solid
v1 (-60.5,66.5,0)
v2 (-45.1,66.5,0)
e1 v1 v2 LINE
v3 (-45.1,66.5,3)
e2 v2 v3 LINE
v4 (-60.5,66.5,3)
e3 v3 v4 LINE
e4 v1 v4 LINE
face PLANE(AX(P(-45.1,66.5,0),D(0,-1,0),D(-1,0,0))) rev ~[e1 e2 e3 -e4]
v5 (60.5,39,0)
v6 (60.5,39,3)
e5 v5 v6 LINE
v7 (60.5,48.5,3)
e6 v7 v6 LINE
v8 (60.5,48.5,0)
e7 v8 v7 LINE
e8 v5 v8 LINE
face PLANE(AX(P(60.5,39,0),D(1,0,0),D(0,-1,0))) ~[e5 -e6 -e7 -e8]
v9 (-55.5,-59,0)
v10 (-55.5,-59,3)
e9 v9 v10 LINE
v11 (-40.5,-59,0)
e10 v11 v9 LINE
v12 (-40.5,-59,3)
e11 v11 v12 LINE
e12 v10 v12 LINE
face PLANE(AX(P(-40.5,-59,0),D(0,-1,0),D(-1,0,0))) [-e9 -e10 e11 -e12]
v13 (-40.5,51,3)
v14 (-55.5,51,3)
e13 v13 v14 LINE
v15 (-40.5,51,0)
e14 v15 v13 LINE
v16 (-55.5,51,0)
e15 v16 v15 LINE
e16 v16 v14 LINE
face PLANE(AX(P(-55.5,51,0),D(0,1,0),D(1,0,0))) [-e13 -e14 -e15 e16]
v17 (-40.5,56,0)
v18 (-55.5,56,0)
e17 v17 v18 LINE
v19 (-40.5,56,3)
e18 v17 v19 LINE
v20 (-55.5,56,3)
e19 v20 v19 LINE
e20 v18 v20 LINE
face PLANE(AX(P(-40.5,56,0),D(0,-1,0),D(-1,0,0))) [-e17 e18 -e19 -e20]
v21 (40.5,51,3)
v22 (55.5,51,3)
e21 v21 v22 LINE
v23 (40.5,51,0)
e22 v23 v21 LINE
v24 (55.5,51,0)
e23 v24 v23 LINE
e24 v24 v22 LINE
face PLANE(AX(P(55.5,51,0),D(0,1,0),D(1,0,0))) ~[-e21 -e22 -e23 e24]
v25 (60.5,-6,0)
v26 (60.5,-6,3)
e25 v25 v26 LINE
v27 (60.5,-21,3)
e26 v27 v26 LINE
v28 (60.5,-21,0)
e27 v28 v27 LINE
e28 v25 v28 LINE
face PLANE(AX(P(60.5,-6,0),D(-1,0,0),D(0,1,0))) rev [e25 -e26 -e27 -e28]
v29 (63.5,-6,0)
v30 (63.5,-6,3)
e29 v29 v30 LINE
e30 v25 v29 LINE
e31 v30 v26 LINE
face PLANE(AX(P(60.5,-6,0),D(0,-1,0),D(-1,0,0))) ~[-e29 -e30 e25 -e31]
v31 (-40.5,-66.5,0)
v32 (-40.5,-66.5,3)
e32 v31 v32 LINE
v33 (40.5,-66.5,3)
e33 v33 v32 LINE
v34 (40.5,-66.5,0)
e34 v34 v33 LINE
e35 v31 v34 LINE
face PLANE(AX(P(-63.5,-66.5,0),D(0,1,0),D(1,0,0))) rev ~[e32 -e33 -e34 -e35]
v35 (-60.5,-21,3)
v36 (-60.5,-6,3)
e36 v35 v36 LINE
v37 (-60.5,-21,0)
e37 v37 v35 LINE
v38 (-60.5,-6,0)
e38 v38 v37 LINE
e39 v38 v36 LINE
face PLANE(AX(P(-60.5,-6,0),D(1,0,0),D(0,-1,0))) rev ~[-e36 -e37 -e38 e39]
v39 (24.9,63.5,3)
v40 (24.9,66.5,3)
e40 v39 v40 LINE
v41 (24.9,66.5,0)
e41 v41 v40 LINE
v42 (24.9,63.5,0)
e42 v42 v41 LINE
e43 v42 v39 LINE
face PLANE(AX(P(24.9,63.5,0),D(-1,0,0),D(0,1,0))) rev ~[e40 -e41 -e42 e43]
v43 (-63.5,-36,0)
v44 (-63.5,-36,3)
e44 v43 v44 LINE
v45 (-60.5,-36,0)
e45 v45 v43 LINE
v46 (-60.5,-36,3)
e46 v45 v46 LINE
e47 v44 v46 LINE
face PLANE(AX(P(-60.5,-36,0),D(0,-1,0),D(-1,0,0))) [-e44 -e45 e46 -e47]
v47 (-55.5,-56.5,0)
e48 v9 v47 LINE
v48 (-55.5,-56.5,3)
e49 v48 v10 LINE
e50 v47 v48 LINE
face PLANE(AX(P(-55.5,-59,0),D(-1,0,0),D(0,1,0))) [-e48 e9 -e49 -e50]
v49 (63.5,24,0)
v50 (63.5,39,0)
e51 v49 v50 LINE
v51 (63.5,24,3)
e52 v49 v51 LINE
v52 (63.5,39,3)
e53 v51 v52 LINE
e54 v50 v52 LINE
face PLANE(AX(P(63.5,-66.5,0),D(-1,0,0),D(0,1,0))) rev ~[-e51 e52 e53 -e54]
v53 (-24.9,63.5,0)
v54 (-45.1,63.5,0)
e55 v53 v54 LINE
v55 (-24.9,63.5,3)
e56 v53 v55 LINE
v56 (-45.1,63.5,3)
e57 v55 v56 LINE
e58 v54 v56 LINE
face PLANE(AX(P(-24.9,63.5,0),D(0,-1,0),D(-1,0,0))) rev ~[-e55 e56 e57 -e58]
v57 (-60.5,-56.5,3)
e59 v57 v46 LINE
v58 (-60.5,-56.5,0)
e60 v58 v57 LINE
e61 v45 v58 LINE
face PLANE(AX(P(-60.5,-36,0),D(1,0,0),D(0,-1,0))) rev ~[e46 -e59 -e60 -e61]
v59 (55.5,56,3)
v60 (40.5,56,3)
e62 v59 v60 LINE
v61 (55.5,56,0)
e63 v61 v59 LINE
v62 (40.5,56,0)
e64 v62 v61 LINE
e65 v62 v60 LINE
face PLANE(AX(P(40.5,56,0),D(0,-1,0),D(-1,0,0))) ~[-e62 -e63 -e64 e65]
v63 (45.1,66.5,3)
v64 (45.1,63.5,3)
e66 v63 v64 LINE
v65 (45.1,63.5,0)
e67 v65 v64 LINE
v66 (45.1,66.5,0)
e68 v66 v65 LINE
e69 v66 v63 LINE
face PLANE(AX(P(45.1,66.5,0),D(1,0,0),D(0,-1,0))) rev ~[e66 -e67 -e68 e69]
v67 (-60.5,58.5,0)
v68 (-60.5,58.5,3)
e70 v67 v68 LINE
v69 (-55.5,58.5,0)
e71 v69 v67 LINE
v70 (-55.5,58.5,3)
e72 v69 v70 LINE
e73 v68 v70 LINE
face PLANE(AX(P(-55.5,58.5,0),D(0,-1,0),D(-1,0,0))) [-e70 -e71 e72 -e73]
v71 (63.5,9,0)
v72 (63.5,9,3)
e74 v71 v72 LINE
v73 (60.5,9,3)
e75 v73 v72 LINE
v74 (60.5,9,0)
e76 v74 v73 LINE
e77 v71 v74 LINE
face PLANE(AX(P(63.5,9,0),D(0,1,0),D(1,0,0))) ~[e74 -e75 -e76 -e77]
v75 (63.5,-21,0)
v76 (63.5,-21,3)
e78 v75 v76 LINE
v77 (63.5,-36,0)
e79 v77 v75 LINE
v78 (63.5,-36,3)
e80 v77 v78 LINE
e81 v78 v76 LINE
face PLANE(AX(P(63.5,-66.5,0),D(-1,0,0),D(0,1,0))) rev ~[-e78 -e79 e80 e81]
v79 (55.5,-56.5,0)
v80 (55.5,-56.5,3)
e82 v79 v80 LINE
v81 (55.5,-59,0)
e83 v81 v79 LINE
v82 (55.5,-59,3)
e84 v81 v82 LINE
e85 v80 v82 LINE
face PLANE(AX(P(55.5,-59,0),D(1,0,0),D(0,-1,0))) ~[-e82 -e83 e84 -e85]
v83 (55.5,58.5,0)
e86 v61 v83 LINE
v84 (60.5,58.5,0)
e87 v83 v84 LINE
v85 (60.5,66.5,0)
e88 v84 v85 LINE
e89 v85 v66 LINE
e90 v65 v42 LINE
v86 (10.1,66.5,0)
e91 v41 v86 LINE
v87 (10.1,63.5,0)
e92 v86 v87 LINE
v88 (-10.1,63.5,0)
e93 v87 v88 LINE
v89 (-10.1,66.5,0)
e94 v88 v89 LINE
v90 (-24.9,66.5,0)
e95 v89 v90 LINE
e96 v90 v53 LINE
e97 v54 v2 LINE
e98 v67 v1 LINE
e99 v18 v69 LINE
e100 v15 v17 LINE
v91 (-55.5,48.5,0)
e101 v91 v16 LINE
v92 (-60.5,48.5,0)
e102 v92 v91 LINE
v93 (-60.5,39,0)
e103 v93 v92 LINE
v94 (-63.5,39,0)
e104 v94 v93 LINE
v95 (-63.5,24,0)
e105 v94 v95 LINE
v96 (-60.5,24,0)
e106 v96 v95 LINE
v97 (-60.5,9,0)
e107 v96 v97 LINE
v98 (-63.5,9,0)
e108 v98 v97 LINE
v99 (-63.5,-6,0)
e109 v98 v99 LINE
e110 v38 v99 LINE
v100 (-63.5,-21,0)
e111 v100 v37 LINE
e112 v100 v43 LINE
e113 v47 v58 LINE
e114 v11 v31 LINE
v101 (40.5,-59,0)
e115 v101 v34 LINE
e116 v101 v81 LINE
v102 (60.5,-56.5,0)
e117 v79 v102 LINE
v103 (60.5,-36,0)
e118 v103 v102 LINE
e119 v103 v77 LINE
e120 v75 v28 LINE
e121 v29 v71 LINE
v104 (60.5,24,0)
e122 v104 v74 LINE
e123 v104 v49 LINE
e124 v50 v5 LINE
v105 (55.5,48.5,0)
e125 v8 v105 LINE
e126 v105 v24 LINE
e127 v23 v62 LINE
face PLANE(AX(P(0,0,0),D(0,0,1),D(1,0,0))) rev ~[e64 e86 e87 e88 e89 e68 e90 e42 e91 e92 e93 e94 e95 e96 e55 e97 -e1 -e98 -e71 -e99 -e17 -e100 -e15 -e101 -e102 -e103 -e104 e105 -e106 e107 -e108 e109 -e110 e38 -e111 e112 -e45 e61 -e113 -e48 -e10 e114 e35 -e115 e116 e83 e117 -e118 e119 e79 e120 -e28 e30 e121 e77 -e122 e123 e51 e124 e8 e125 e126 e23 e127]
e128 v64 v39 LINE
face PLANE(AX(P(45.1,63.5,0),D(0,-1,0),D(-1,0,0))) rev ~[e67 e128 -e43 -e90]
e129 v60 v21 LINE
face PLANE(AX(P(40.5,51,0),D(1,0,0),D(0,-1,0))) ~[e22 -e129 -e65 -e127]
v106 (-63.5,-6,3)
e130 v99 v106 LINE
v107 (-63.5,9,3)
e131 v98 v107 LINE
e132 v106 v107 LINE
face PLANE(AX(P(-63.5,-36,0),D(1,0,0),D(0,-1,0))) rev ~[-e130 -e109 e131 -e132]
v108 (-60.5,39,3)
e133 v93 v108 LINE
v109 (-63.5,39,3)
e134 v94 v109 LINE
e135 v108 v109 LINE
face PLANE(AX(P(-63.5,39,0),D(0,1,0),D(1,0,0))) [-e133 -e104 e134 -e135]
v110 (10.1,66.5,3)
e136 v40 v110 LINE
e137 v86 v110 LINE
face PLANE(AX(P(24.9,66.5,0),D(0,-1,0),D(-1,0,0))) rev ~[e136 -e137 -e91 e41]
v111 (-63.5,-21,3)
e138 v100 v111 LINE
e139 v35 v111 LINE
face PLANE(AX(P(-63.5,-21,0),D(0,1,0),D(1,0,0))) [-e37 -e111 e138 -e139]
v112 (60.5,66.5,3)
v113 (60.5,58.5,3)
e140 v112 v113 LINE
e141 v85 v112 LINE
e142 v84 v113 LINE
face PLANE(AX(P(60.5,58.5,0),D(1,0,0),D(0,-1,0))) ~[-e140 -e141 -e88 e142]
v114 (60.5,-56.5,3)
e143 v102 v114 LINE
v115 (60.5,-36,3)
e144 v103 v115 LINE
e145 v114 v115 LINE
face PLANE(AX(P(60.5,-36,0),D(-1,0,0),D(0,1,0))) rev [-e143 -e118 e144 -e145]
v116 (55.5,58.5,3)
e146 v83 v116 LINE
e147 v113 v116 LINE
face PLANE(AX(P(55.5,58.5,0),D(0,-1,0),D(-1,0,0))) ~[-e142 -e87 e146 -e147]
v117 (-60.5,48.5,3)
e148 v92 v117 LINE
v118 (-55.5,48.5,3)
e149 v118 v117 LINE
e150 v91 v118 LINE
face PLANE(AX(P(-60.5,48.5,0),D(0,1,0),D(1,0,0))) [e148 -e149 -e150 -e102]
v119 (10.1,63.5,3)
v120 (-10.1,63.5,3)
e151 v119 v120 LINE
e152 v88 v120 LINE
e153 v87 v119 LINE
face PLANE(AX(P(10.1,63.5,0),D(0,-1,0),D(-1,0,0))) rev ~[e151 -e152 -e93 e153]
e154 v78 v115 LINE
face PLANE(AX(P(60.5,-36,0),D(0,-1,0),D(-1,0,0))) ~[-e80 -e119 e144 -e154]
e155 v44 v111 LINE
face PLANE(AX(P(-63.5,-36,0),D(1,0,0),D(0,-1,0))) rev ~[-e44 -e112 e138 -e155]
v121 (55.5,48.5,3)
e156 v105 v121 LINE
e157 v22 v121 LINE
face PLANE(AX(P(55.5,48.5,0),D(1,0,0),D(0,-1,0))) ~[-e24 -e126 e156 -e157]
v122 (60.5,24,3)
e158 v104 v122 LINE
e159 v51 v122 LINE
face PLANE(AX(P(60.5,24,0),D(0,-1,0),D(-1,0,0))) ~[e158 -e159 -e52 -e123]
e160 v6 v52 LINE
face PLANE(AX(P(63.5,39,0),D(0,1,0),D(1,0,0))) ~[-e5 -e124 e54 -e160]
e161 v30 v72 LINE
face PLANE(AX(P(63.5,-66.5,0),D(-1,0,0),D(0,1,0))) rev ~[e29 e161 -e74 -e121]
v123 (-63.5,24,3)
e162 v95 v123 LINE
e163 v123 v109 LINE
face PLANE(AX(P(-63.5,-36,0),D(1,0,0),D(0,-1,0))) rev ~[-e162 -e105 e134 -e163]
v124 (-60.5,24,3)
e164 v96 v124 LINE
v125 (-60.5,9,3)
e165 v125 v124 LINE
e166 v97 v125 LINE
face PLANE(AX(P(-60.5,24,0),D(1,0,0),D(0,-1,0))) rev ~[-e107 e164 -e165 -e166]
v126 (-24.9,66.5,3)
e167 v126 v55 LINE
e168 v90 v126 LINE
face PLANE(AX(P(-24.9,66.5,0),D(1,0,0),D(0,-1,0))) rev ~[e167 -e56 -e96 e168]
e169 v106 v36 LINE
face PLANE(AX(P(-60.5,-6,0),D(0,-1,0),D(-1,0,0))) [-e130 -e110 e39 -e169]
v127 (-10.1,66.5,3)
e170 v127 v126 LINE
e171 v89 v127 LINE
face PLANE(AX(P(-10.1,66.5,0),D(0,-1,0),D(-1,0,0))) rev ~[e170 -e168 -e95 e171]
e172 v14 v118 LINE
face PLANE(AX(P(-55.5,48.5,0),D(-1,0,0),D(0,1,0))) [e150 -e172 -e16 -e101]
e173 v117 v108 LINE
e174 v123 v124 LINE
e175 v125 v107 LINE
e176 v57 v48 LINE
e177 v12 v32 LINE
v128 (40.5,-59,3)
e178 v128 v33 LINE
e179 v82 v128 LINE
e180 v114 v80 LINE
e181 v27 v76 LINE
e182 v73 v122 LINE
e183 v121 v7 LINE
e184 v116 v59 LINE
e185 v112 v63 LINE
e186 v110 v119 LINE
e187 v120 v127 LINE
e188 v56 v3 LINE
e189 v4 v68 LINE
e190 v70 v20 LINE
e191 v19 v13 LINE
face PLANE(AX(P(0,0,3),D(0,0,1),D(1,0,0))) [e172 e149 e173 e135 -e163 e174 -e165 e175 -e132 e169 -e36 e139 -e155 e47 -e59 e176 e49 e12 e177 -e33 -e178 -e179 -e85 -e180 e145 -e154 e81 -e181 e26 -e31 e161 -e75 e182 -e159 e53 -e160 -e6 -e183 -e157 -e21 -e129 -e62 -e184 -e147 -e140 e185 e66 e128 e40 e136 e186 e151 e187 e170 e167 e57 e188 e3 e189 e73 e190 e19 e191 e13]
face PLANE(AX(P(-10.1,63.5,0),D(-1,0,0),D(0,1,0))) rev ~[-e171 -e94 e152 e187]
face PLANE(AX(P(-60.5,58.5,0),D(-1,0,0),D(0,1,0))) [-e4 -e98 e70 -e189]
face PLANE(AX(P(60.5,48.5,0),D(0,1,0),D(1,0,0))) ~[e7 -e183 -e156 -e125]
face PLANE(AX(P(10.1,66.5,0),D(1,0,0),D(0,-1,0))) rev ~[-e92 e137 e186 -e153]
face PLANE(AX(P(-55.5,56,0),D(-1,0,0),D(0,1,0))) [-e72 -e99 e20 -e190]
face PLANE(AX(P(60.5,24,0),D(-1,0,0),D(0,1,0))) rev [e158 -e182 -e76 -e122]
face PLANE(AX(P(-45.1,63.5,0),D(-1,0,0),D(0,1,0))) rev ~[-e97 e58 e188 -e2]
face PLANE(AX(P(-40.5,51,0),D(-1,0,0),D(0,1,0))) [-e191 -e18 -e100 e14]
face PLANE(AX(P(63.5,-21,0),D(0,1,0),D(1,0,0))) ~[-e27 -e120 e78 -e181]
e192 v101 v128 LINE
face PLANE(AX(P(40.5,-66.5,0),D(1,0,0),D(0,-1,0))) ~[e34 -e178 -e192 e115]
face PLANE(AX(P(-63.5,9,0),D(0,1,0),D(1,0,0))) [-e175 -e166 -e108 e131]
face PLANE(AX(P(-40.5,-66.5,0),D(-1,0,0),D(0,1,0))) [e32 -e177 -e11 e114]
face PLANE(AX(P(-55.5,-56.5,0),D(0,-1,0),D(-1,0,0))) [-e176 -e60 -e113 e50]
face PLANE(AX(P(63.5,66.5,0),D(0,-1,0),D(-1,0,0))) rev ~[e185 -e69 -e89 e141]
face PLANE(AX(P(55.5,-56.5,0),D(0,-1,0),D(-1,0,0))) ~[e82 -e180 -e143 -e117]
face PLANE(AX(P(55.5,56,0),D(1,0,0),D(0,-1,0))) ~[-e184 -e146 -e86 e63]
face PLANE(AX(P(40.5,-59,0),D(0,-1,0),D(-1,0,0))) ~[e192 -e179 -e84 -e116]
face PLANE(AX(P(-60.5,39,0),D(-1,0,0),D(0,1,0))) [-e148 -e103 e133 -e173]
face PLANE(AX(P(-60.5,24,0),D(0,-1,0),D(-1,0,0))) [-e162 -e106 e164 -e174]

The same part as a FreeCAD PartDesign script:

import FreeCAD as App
import Part
import Sketcher


def add_polygon(sketch, points):
    """Adds a closed chain of lines whose ends are joined by coincident constraints."""
    first, n = sketch.GeometryCount, len(points)
    for a, b in zip(points, points[1:] + points[:1]):
        sketch.addGeometry(Part.LineSegment(App.Vector(*a, 0), App.Vector(*b, 0)), False)
    for i in range(n):
        sketch.addConstraint(Sketcher.Constraint("Coincident", first + i, 2, first + (i + 1) % n, 1))

doc = App.newDocument("Part")
body = doc.addObject("PartDesign::Body", "Body")

# Sketch on XY plane
sketch1 = body.newObject("Sketcher::SketchObject", "Sketch")
sketch1.AttachmentSupport = (doc.getObject("XY_Plane"), [""])
sketch1.MapMode = "FlatFace"
add_polygon(sketch1, [(-63.5, -66.5), (63.5, -66.5), (63.5, 66.5), (45.1, 66.5), (45.1, 63.5), (24.9, 63.5), (24.9, 66.5), (10.1, 66.5), (10.1, 63.5), (-10.1, 63.5), (-10.1, 66.5), (-24.9, 66.5), (-24.9, 63.5), (-45.1, 63.5), (-45.1, 66.5), (-63.5, 66.5)])  # lines 0-15
sketch1.addConstraint([
    Sketcher.Constraint("Horizontal", 0),
    Sketcher.Constraint("Vertical", 1),
    Sketcher.Constraint("Horizontal", 2),
    Sketcher.Constraint("Vertical", 3),
    Sketcher.Constraint("Horizontal", 4),
    Sketcher.Constraint("Vertical", 5),
    Sketcher.Constraint("Horizontal", 6),
    Sketcher.Constraint("Vertical", 7),
    Sketcher.Constraint("Horizontal", 8),
    Sketcher.Constraint("Vertical", 9),
    Sketcher.Constraint("Horizontal", 10),
    Sketcher.Constraint("Vertical", 11),
    Sketcher.Constraint("Horizontal", 12),
    Sketcher.Constraint("Vertical", 13),
    Sketcher.Constraint("Horizontal", 14),
    Sketcher.Constraint("Vertical", 15),
    Sketcher.Constraint("Symmetric", 0, 2, 14, 2, -1, 1),
    Sketcher.Constraint("Symmetric", 6, 2, 9, 2, -2),
    Sketcher.Constraint("Symmetric", 4, 2, 11, 2, -2),
    Sketcher.Constraint("Symmetric", 2, 2, 13, 2, -2),
    Sketcher.Constraint("Horizontal", 2, 2, 5, 2),
    Sketcher.Constraint("Horizontal", 4, 2, 7, 2),
    Sketcher.Constraint("Equal", 4, 8),
    Sketcher.Constraint("DistanceX", 0, 1, 0, 2, 127.0),
    Sketcher.Constraint("DistanceY", 1, 1, 1, 2, 133.0),
    Sketcher.Constraint("DistanceY", 3, 2, 3, 1, 3.0),
    Sketcher.Constraint("DistanceX", 4, 2, 4, 1, 20.2),
    Sketcher.Constraint("DistanceX", 6, 2, 2, 2, 35.0),
])
pad1 = body.newObject("PartDesign::Pad", "Pad")
pad1.Profile = sketch1
pad1.Length = 3

# Sketch on XY plane
sketch2 = body.newObject("Sketcher::SketchObject", "Sketch001")
sketch2.AttachmentSupport = (doc.getObject("XY_Plane"), [""])
sketch2.MapMode = "FlatFace"
add_polygon(sketch2, [(-63.5, -36), (-63.5, -66.5), (-40.5, -66.5), (-40.5, -59), (-55.5, -59), (-55.5, -56.5), (-60.5, -56.5), (-60.5, -36)])  # lines 0-7
add_polygon(sketch2, [(-63.5, -6), (-63.5, -21), (-60.5, -21), (-60.5, -6)])  # lines 8-11
add_polygon(sketch2, [(-63.5, 24), (-63.5, 9), (-60.5, 9), (-60.5, 24)])  # lines 12-15
add_polygon(sketch2, [(-63.5, 66.5), (-63.5, 39), (-60.5, 39), (-60.5, 48.5), (-55.5, 48.5), (-55.5, 51), (-40.5, 51), (-40.5, 56), (-55.5, 56), (-55.5, 58.5), (-60.5, 58.5), (-60.5, 66.5)])  # lines 16-27
sketch2.addConstraint([
    Sketcher.Constraint("Vertical", 0),
    Sketcher.Constraint("Horizontal", 1),
    Sketcher.Constraint("Vertical", 2),
    Sketcher.Constraint("Horizontal", 3),
    Sketcher.Constraint("Vertical", 4),
    Sketcher.Constraint("Horizontal", 5),
    Sketcher.Constraint("Vertical", 6),
    Sketcher.Constraint("Horizontal", 7),
    Sketcher.Constraint("Vertical", 8),
    Sketcher.Constraint("Horizontal", 9),
    Sketcher.Constraint("Vertical", 10),
    Sketcher.Constraint("Horizontal", 11),
    Sketcher.Constraint("Vertical", 12),
    Sketcher.Constraint("Horizontal", 13),
    Sketcher.Constraint("Vertical", 14),
    Sketcher.Constraint("Horizontal", 15),
    Sketcher.Constraint("Vertical", 16),
    Sketcher.Constraint("Horizontal", 17),
    Sketcher.Constraint("Vertical", 18),
    Sketcher.Constraint("Horizontal", 19),
    Sketcher.Constraint("Vertical", 20),
    Sketcher.Constraint("Horizontal", 21),
    Sketcher.Constraint("Vertical", 22),
    Sketcher.Constraint("Horizontal", 23),
    Sketcher.Constraint("Vertical", 24),
    Sketcher.Constraint("Horizontal", 25),
    Sketcher.Constraint("Vertical", 26),
    Sketcher.Constraint("Horizontal", 27),
    Sketcher.Constraint("Symmetric", 0, 2, 27, 2, -1),
    Sketcher.Constraint("Vertical", 7, 2, 8, 2),
    Sketcher.Constraint("Vertical", 6, 2, 9, 2),
    Sketcher.Constraint("Vertical", 11, 2, 12, 2),
    Sketcher.Constraint("Vertical", 10, 2, 13, 2),
    Sketcher.Constraint("Vertical", 14, 2, 17, 2),
    Sketcher.Constraint("Vertical", 4, 2, 19, 2),
    Sketcher.Constraint("Vertical", 2, 2, 21, 2),
    Sketcher.Constraint("Vertical", 20, 2, 23, 2),
    Sketcher.Constraint("Vertical", 18, 2, 25, 2),
    Sketcher.Constraint("Equal", 23, 8),
    Sketcher.Constraint("Equal", 10, 12),
    Sketcher.Constraint("Equal", 4, 20),
    Sketcher.Constraint("Equal", 25, 22),
    Sketcher.Constraint("Equal", 20, 24),
    Sketcher.Constraint("DistanceX", 3, 2, 3, 1, 15.0),
    Sketcher.Constraint("DistanceX", 5, 2, 5, 1, 5.0),
    Sketcher.Constraint("DistanceX", 7, 2, 7, 1, 3.0),
    Sketcher.Constraint("DistanceY", 0, 2, 4, 2, 10.0),
    Sketcher.Constraint("DistanceY", 7, 2, 8, 2, 15.0),
    Sketcher.Constraint("DistanceY", 11, 2, 12, 2, 15.0),
    Sketcher.Constraint("DistanceY", 15, 2, 16, 2, 15.0),
    Sketcher.Constraint("DistanceY", 19, 2, 24, 2, 10.0),
    Sketcher.Constraint("DistanceY", 26, 1, 26, 2, 8.0),
    Sketcher.Constraint("DistanceY", 0, 2, 0, 1, 30.5),
    Sketcher.Constraint("DistanceY", 16, 2, 16, 1, 27.5),
    Sketcher.Constraint("DistanceX", 0, 2, -1, 1, 63.5),
])
pocket1 = body.newObject("PartDesign::Pocket", "Pocket")
pocket1.Profile = sketch2
pocket1.Type = "ThroughAll"
pocket1.Reversed = True
doc.recompute()

mirrored = body.newObject("PartDesign::Mirrored", "Mirrored")
mirrored.Originals = [pocket1]
mirrored.MirrorPlane = (doc.getObject("YZ_Plane"), [""])
body.Tip = mirrored

doc.recompute()
